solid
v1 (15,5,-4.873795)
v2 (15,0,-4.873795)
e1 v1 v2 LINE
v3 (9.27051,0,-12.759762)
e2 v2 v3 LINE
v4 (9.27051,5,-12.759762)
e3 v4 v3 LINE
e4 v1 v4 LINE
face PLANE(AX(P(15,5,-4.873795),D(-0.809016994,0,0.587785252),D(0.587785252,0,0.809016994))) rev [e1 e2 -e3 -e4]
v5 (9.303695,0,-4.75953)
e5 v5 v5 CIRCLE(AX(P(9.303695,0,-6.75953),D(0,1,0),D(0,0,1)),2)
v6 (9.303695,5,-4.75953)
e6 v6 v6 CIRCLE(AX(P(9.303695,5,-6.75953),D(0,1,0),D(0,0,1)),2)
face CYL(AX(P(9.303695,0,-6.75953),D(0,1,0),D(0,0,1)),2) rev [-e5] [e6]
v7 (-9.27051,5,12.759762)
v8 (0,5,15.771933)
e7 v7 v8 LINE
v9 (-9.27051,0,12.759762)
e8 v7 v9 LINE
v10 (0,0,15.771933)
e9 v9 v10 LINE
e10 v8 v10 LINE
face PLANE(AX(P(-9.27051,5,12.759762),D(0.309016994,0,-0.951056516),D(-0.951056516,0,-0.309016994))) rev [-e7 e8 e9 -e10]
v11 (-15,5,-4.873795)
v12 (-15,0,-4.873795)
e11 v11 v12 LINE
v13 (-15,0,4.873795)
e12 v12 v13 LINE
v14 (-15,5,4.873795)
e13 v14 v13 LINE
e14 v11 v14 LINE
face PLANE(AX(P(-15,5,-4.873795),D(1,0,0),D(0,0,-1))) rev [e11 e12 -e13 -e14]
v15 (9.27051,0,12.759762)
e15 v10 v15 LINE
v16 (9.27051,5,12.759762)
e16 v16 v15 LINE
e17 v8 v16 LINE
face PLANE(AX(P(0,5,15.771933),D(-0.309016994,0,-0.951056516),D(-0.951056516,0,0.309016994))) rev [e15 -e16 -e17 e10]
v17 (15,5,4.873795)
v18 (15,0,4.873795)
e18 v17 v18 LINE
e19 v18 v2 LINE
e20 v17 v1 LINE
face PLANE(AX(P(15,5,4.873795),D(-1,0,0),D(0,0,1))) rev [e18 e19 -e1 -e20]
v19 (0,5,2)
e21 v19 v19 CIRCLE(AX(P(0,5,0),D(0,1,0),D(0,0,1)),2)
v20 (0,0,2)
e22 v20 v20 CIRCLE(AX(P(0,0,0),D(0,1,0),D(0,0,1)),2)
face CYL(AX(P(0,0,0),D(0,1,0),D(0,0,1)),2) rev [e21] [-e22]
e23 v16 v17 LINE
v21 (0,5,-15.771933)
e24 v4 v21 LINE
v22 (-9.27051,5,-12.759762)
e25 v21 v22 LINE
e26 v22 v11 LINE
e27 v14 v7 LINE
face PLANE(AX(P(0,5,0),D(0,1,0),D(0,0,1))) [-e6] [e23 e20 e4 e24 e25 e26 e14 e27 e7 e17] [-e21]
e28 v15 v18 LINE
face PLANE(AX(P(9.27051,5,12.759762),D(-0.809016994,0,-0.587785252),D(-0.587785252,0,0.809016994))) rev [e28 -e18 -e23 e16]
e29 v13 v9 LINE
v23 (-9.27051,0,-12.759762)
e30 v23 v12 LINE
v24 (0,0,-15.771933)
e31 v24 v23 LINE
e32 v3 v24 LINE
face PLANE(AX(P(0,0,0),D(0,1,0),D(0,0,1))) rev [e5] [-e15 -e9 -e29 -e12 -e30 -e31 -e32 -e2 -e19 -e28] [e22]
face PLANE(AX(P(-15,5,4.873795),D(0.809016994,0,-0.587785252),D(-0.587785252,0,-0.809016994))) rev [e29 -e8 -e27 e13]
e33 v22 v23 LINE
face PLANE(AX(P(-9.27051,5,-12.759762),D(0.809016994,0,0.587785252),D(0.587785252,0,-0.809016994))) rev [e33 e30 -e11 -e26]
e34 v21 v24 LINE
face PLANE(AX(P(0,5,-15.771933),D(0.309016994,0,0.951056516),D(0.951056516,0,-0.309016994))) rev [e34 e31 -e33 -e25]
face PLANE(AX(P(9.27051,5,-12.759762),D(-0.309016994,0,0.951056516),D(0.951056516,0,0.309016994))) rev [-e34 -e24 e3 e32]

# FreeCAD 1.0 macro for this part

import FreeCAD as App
import Part
import Sketcher
Q = App.Units.Quantity

doc = App.newDocument("Part")
body = doc.addObject("PartDesign::Body", "Body")

# Sketch on XZ plane
sketch1 = body.newObject("Sketcher::SketchObject", "Sketch")
sketch1.AttachmentSupport = (doc.getObject("XZ_Plane"), [""])
sketch1.MapMode = "FlatFace"
sketch1.addGeometry(Part.LineSegment(App.Vector(9, 13, 0), App.Vector(15, 5, 0)), False)
sketch1.addGeometry(Part.LineSegment(App.Vector(15, 5, 0), App.Vector(15, -5, 0)), False)
sketch1.addGeometry(Part.LineSegment(App.Vector(15, -5, 0), App.Vector(9, -13, 0)), False)
sketch1.addGeometry(Part.LineSegment(App.Vector(9, -13, 0), App.Vector(0, -16, 0)), False)
sketch1.addGeometry(Part.LineSegment(App.Vector(0, -16, 0), App.Vector(-9, -13, 0)), False)
sketch1.addGeometry(Part.LineSegment(App.Vector(-9, -13, 0), App.Vector(-15, -5, 0)), False)
sketch1.addGeometry(Part.LineSegment(App.Vector(-15, -5, 0), App.Vector(-15, 5, 0)), False)
sketch1.addGeometry(Part.LineSegment(App.Vector(-15, 5, 0), App.Vector(-9, 13, 0)), False)
sketch1.addGeometry(Part.LineSegment(App.Vector(-9, 13, 0), App.Vector(0, 16, 0)), False)
sketch1.addGeometry(Part.LineSegment(App.Vector(0, 16, 0), App.Vector(9, 13, 0)), False)
sketch1.addConstraint(Sketcher.Constraint("Coincident", 0, 2, 1, 1))
sketch1.addConstraint(Sketcher.Constraint("Coincident", 1, 2, 2, 1))
sketch1.addConstraint(Sketcher.Constraint("Coincident", 2, 2, 3, 1))
sketch1.addConstraint(Sketcher.Constraint("Coincident", 3, 2, 4, 1))
sketch1.addConstraint(Sketcher.Constraint("Coincident", 4, 2, 5, 1))
sketch1.addConstraint(Sketcher.Constraint("Coincident", 5, 2, 6, 1))
sketch1.addConstraint(Sketcher.Constraint("Coincident", 6, 2, 7, 1))
sketch1.addConstraint(Sketcher.Constraint("Coincident", 7, 2, 8, 1))
sketch1.addConstraint(Sketcher.Constraint("Coincident", 8, 2, 9, 1))
sketch1.addConstraint(Sketcher.Constraint("Coincident", 9, 2, 0, 1))
sketch1.addConstraint(Sketcher.Constraint("Vertical", 1))
sketch1.addConstraint(Sketcher.Constraint("Vertical", 6))
sketch1.addConstraint(Sketcher.Constraint("Symmetric", 0, 2, 5, 2, -1, 1))
sketch1.addConstraint(Sketcher.Constraint("Symmetric", 2, 2, 7, 2, -1, 1))
sketch1.addConstraint(Sketcher.Constraint("Symmetric", 3, 2, 8, 2, -1, 1))
sketch1.addConstraint(Sketcher.Constraint("Symmetric", 4, 2, 9, 2, -1, 1))
sketch1.addConstraint(Sketcher.Constraint("Symmetric", 2, 2, 4, 2, -2))
sketch1.addConstraint(Sketcher.Constraint("PointOnObject", 3, 2, -2))
sketch1.addConstraint(Sketcher.Constraint("Parallel", 2, 7))
sketch1.addConstraint(Sketcher.Constraint("Horizontal", 1, 2, 5, 2))
sketch1.addConstraint(Sketcher.Constraint("Equal", 2, 3))
sketch1.addConstraint(Sketcher.Constraint("Angle", 0, Q("-54 deg")))
sketch1.addConstraint(Sketcher.Constraint("Angle", 3, Q("-162 deg")))
sketch1.addConstraint(Sketcher.Constraint("DistanceX", -1, 1, 0, 2, Q("15 mm")))
sketch1.addConstraint(Sketcher.Constraint("DistanceY", 1, 2, 1, 1, Q("9.747591 mm")))
pad1 = body.newObject("PartDesign::Pad", "Pad")
pad1.Profile = sketch1
pad1.Length = 5
pad1.Reversed = True

# Sketch on XZ plane
sketch2 = body.newObject("Sketcher::SketchObject", "Sketch001")
sketch2.AttachmentSupport = (doc.getObject("XZ_Plane"), [""])
sketch2.MapMode = "FlatFace"
sketch2.AttachmentOffset = App.Placement(App.Vector(0, 0, -5), App.Rotation())
sketch2.addGeometry(Part.Circle(App.Vector(0, 0, 0), App.Vector(0, 0, 1), 2), False)
sketch2.addGeometry(Part.Circle(App.Vector(9.3, -6.8, 0), App.Vector(0, 0, 1), 2), False)
sketch2.addConstraint(Sketcher.Constraint("Coincident", 0, 3, -1, 1))
sketch2.addConstraint(Sketcher.Constraint("Equal", 0, 1))
sketch2.addConstraint(Sketcher.Constraint("Diameter", 0, Q("4 mm")))
sketch2.addConstraint(Sketcher.Constraint("DistanceY", 1, 3, -1, 1, Q("6.75953 mm")))
sketch2.addConstraint(Sketcher.Constraint("DistanceX", -1, 1, 1, 3, Q("9.303695 mm")))
pocket1 = body.newObject("PartDesign::Pocket", "Pocket")
pocket1.Profile = sketch2
pocket1.Length = 5
pocket1.Reversed = True

doc.recompute()
